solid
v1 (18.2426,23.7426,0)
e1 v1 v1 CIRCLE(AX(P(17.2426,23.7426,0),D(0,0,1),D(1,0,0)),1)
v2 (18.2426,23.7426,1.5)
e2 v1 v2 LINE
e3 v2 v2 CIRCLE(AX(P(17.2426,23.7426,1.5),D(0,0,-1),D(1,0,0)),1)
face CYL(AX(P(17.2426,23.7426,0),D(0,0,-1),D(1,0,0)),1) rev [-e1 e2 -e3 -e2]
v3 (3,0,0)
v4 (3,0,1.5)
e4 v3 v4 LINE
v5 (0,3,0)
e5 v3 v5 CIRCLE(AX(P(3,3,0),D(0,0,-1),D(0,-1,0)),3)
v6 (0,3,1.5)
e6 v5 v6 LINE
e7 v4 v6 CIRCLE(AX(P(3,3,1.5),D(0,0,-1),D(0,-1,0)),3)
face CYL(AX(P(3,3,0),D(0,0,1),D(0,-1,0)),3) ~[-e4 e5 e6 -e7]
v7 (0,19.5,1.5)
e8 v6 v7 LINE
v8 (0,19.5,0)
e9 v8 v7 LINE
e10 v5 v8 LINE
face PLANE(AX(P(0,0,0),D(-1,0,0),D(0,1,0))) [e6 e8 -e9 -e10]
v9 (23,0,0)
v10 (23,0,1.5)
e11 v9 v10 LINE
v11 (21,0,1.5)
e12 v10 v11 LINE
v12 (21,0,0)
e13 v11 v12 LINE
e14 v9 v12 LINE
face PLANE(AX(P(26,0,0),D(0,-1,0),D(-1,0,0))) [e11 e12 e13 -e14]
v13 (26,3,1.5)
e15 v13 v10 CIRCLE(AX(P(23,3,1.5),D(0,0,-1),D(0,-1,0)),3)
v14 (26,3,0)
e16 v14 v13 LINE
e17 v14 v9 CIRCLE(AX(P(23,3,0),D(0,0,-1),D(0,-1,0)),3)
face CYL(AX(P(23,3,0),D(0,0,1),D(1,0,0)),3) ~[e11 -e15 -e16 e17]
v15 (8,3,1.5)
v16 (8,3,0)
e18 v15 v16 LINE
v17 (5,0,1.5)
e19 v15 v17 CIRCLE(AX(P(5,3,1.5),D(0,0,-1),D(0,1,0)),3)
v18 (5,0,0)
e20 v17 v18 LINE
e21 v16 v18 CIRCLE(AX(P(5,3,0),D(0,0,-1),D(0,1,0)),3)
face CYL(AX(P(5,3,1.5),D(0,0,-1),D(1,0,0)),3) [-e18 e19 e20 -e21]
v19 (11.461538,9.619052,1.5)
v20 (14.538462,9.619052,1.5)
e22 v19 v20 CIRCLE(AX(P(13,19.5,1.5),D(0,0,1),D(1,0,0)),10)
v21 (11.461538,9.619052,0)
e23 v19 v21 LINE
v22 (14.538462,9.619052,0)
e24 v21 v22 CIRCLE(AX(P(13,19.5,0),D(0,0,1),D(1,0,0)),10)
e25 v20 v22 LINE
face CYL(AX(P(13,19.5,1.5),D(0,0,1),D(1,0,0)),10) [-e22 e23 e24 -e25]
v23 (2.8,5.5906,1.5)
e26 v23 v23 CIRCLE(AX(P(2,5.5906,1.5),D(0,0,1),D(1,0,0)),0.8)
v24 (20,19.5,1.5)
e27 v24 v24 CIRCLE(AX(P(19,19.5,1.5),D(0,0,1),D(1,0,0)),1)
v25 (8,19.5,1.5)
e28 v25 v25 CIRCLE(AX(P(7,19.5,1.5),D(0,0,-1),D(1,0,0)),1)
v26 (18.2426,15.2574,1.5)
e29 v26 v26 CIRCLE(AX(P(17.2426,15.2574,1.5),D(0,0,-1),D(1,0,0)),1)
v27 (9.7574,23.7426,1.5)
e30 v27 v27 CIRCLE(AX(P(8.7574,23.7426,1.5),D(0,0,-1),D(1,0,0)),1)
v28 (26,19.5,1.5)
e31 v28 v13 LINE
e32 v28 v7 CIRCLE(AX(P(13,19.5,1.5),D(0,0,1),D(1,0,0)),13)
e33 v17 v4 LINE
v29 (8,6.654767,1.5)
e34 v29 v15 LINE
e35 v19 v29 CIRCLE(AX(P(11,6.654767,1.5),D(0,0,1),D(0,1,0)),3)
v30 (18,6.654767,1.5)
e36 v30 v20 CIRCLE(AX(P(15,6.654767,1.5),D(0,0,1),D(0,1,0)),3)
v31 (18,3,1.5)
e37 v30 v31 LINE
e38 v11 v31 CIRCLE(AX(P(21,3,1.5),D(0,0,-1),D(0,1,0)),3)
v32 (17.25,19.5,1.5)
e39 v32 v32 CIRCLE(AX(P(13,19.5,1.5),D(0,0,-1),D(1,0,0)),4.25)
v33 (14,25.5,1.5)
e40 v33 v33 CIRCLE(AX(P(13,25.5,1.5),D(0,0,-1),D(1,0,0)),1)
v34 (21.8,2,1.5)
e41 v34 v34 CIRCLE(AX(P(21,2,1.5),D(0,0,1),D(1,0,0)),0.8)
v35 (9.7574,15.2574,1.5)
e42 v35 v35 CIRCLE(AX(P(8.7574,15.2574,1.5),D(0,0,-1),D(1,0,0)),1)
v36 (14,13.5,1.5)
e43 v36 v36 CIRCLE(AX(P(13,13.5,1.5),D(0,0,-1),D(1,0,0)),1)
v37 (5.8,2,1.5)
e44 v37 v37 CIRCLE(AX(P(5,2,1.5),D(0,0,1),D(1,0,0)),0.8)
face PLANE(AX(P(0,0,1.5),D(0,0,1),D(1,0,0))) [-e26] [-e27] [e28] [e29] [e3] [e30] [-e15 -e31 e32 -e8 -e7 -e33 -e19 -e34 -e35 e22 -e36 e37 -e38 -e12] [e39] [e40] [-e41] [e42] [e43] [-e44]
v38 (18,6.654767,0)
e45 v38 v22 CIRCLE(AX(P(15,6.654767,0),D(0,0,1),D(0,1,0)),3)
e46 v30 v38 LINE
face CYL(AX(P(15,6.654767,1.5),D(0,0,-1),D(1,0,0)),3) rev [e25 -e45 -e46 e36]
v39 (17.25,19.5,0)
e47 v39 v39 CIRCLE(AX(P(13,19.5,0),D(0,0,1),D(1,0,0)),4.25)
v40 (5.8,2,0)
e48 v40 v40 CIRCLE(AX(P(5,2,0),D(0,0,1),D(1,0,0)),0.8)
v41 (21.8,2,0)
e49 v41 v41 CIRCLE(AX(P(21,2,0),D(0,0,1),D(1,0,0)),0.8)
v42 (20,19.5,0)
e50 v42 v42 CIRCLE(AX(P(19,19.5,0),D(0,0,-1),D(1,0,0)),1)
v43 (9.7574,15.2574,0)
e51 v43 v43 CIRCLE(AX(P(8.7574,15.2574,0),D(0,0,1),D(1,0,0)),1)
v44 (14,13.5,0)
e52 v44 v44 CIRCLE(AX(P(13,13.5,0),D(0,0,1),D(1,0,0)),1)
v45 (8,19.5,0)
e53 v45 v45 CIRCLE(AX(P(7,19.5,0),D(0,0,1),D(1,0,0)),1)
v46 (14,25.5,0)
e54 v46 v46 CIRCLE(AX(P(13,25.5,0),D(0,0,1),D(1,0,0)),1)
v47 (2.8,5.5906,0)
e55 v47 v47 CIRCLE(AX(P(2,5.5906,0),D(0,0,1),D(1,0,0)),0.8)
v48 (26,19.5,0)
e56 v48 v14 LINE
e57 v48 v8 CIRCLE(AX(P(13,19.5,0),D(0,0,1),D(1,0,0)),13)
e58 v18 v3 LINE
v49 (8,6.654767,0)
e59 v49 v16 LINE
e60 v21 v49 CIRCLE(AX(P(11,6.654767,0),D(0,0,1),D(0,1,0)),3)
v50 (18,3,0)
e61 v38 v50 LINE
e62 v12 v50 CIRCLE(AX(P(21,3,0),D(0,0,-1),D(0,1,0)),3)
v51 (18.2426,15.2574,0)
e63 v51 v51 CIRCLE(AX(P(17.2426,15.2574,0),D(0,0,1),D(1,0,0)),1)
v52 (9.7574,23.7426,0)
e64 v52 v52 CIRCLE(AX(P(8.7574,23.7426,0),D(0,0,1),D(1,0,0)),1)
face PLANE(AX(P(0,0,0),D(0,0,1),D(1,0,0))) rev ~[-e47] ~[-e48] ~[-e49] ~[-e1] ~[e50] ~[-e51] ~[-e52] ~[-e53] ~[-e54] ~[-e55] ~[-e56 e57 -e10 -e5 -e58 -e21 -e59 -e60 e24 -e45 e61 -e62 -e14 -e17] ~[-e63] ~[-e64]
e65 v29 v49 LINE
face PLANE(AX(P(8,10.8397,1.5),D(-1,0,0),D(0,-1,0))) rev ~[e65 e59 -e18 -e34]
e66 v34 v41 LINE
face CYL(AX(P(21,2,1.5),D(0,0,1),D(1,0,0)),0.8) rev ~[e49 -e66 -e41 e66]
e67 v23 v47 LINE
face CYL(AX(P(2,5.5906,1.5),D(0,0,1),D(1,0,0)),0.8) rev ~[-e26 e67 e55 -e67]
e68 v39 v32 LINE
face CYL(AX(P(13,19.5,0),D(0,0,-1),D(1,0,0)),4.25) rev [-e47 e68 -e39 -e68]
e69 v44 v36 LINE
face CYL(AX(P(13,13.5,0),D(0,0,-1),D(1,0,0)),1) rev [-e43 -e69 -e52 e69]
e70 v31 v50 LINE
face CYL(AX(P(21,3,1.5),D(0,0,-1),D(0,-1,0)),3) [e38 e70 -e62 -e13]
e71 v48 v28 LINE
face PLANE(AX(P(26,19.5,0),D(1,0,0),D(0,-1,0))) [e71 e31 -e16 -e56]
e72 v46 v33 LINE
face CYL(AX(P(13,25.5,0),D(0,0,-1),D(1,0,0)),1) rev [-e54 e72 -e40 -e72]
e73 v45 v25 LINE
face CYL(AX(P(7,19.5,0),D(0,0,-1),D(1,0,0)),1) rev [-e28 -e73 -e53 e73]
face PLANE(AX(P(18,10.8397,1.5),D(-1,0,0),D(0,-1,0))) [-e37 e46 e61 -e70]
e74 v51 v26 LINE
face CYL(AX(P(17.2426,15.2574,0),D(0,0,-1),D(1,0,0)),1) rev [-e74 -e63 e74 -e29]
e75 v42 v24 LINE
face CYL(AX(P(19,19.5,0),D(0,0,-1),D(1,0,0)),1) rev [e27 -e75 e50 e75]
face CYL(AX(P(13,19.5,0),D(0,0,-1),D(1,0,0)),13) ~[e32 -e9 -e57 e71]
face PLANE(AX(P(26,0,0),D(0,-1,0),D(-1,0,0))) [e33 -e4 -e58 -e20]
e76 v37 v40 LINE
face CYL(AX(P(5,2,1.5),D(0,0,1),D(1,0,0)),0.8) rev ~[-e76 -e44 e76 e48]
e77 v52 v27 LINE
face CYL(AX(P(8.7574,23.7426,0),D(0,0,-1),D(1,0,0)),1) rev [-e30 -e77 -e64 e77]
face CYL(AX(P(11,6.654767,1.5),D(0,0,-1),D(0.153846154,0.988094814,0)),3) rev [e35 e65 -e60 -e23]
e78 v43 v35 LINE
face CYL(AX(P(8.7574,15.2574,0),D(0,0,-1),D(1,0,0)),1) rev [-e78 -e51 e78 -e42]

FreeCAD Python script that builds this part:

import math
import FreeCAD as App
import Part
import Sketcher

V = App.Vector
Q = App.Units.Quantity


def edges_at(feature, points):
    """Names of the edges that pass closest to the given points."""
    edges = feature.Shape.Edges
    near = lambda p: min(range(len(edges)), key=lambda i: edges[i].distToShape(Part.Vertex(*p))[0])
    return sorted({f"Edge{near(p) + 1}" for p in points})

doc = App.newDocument("Part")
body = doc.addObject("PartDesign::Body", "Body")

sketch1 = body.newObject("Sketcher::SketchObject", "Sketch")
sketch1.AttachmentSupport = (doc.getObject("XY_Plane"), [""])
sketch1.MapMode = "FlatFace"
sketch1.addGeometry(Part.ArcOfCircle(Part.Circle(V(13, 19.5, 0), V(0, 0, 1), 13), math.radians(0), math.radians(180)), False)
sketch1.addGeometry(Part.LineSegment(V(0, 19.5, 0), V(0, 0, 0)), False)
sketch1.addGeometry(Part.LineSegment(V(0, 0, 0), V(26, 0, 0)), False)
sketch1.addGeometry(Part.LineSegment(V(26, 0, 0), V(26, 19.5, 0)), False)
sketch1.addGeometry(Part.Circle(V(19, 19.5, 0), V(0, 0, 1), 1), False)
sketch1.addGeometry(Part.Circle(V(17.2, 23.7, 0), V(0, 0, 1), 1), False)
sketch1.addGeometry(Part.Circle(V(13, 25.5, 0), V(0, 0, 1), 1), False)
sketch1.addGeometry(Part.Circle(V(8.8, 23.7, 0), V(0, 0, 1), 1), False)
sketch1.addGeometry(Part.Circle(V(7, 19.5, 0), V(0, 0, 1), 1), False)
sketch1.addGeometry(Part.Circle(V(13, 19.5, 0), V(0, 0, 1), 4.2), False)
sketch1.addGeometry(Part.Circle(V(8.8, 15.3, 0), V(0, 0, 1), 1), False)
sketch1.addGeometry(Part.Circle(V(13, 13.5, 0), V(0, 0, 1), 1), False)
sketch1.addGeometry(Part.Circle(V(17.2, 15.3, 0), V(0, 0, 1), 1), False)
sketch1.addConstraint(Sketcher.Constraint("Tangent", 0, 2, 1, 1))
sketch1.addConstraint(Sketcher.Constraint("Coincident", 1, 2, 2, 1))
sketch1.addConstraint(Sketcher.Constraint("Coincident", 2, 2, 3, 1))
sketch1.addConstraint(Sketcher.Constraint("Tangent", 3, 2, 0, 1))
sketch1.addConstraint(Sketcher.Constraint("Vertical", 1))
sketch1.addConstraint(Sketcher.Constraint("Horizontal", 2))
sketch1.addConstraint(Sketcher.Constraint("Vertical", 3))
sketch1.addConstraint(Sketcher.Constraint("Coincident", 1, 2, -1, 1))
sketch1.addConstraint(Sketcher.Constraint("Coincident", 9, 3, 0, 3))
sketch1.addConstraint(Sketcher.Constraint("Equal", 4, 5))
sketch1.addConstraint(Sketcher.Constraint("Equal", 5, 6))
sketch1.addConstraint(Sketcher.Constraint("Equal", 6, 7))
sketch1.addConstraint(Sketcher.Constraint("Equal", 7, 8))
sketch1.addConstraint(Sketcher.Constraint("Equal", 8, 10))
sketch1.addConstraint(Sketcher.Constraint("Equal", 10, 11))
sketch1.addConstraint(Sketcher.Constraint("Equal", 11, 12))
sketch1.addConstraint(Sketcher.Constraint("Horizontal", 0, 3, 4, 3))
sketch1.addConstraint(Sketcher.Constraint("Horizontal", 5, 3, 7, 3))
sketch1.addConstraint(Sketcher.Constraint("Horizontal", 4, 3, 8, 3))
sketch1.addConstraint(Sketcher.Constraint("Horizontal", 10, 3, 12, 3))
sketch1.addConstraint(Sketcher.Constraint("Vertical", 0, 3, 6, 3))
sketch1.addConstraint(Sketcher.Constraint("Vertical", 7, 3, 10, 3))
sketch1.addConstraint(Sketcher.Constraint("Vertical", 9, 3, 11, 3))
sketch1.addConstraint(Sketcher.Constraint("Vertical", 5, 3, 12, 3))
sketch1.addConstraint(Sketcher.Constraint("Diameter", 4, Q("2 mm")))
sketch1.addConstraint(Sketcher.Constraint("Radius", 0, Q("13 mm")))
sketch1.addConstraint(Sketcher.Constraint("Diameter", 9, Q("8.5 mm")))
sketch1.addConstraint(Sketcher.Constraint("DistanceY", 1, 2, 1, 1, Q("19.5 mm")))
sketch1.addConstraint(Sketcher.Constraint("DistanceX", 8, 3, 4, 3, Q("12 mm")))
sketch1.addConstraint(Sketcher.Constraint("DistanceX", -1, 1, 4, 3, Q("19 mm")))
sketch1.addConstraint(Sketcher.Constraint("DistanceY", 0, 3, 6, 3, Q("6 mm")))
sketch1.addConstraint(Sketcher.Constraint("DistanceY", 11, 3, 0, 3, Q("6 mm")))
sketch1.addConstraint(Sketcher.Constraint("DistanceX", -1, 1, 5, 3, Q("17.2426 mm")))
sketch1.addConstraint(Sketcher.Constraint("DistanceY", -1, 1, 5, 3, Q("23.7426 mm")))
sketch1.addConstraint(Sketcher.Constraint("DistanceX", -1, 1, 7, 3, Q("8.7574 mm")))
sketch1.addConstraint(Sketcher.Constraint("DistanceY", -1, 1, 10, 3, Q("15.2574 mm")))
pad1 = body.newObject("PartDesign::Pad", "Pad")
pad1.Profile = sketch1
pad1.Length = 1.5

sketch2 = body.newObject("Sketcher::SketchObject", "Sketch001")
sketch2.AttachmentSupport = (doc.getObject("XY_Plane"), [""])
sketch2.MapMode = "FlatFace"
sketch2.AttachmentOffset = App.Placement(V(0, 0, 1.5), App.Rotation())
sketch2.addGeometry(Part.Circle(V(2, 5.6, 0), V(0, 0, 1), 0.8), False)
sketch2.addGeometry(Part.Circle(V(5, 2, 0), V(0, 0, 1), 0.8), False)
sketch2.addGeometry(Part.Circle(V(21, 2, 0), V(0, 0, 1), 0.8), False)
sketch2.addGeometry(Part.ArcOfCircle(Part.Circle(V(13, 19.5, 0), V(0, 0, 1), 10), math.radians(-120), math.radians(-60)), False)
sketch2.addGeometry(Part.LineSegment(V(8, 10.8, 0), V(8, 0, 0)), False)
sketch2.addGeometry(Part.LineSegment(V(8, 0, 0), V(18, 0, 0)), False)
sketch2.addGeometry(Part.LineSegment(V(18, 0, 0), V(18, 10.8, 0)), False)
sketch2.addConstraint(Sketcher.Constraint("Coincident", 3, 1, 4, 1))
sketch2.addConstraint(Sketcher.Constraint("Coincident", 4, 2, 5, 1))
sketch2.addConstraint(Sketcher.Constraint("Coincident", 5, 2, 6, 1))
sketch2.addConstraint(Sketcher.Constraint("Coincident", 6, 2, 3, 2))
sketch2.addConstraint(Sketcher.Constraint("Vertical", 4))
sketch2.addConstraint(Sketcher.Constraint("Horizontal", 5))
sketch2.addConstraint(Sketcher.Constraint("Vertical", 6))
sketch2.addConstraint(Sketcher.Constraint("Equal", 0, 1))
sketch2.addConstraint(Sketcher.Constraint("Equal", 1, 2))
sketch2.addConstraint(Sketcher.Constraint("PointOnObject", 4, 2, -1))
sketch2.addConstraint(Sketcher.Constraint("Horizontal", 1, 3, 2, 3))
sketch2.addConstraint(Sketcher.Constraint("Horizontal", 3, 1, 6, 2))
sketch2.addConstraint(Sketcher.Constraint("Radius", 3, Q("10 mm")))
sketch2.addConstraint(Sketcher.Constraint("DistanceX", 0, 3, 1, 3, Q("3 mm")))
sketch2.addConstraint(Sketcher.Constraint("DistanceX", 1, 3, 3, 1, Q("3 mm")))
sketch2.addConstraint(Sketcher.Constraint("DistanceX", 5, 2, 2, 3, Q("3 mm")))
sketch2.addConstraint(Sketcher.Constraint("Diameter", 0, Q("1.6 mm")))
sketch2.addConstraint(Sketcher.Constraint("DistanceX", 5, 1, 5, 2, Q("10 mm")))
sketch2.addConstraint(Sketcher.Constraint("DistanceX", -1, 1, 0, 3, Q("2 mm")))
sketch2.addConstraint(Sketcher.Constraint("DistanceY", -1, 1, 1, 3, Q("2 mm")))
sketch2.addConstraint(Sketcher.Constraint("DistanceY", -1, 1, 3, 3, Q("19.5 mm")))
sketch2.addConstraint(Sketcher.Constraint("DistanceY", -1, 1, 0, 3, Q("5.5906 mm")))
pocket1 = body.newObject("PartDesign::Pocket", "Pocket")
pocket1.Profile = sketch2
pocket1.Type = "ThroughAll"
doc.recompute()

fillet = body.newObject("PartDesign::Fillet", "Fillet")
fillet.Base = (pocket1, edges_at(pocket1, [
    (0, 0, 0.75),
    (8, 0, 0.75),
    (8, 10.84, 0.75),
    (18, 10.84, 0.75),
    (18, 0, 0.75),
    (26, 0, 0.75),
]))
fillet.Radius = 3

doc.recompute()
